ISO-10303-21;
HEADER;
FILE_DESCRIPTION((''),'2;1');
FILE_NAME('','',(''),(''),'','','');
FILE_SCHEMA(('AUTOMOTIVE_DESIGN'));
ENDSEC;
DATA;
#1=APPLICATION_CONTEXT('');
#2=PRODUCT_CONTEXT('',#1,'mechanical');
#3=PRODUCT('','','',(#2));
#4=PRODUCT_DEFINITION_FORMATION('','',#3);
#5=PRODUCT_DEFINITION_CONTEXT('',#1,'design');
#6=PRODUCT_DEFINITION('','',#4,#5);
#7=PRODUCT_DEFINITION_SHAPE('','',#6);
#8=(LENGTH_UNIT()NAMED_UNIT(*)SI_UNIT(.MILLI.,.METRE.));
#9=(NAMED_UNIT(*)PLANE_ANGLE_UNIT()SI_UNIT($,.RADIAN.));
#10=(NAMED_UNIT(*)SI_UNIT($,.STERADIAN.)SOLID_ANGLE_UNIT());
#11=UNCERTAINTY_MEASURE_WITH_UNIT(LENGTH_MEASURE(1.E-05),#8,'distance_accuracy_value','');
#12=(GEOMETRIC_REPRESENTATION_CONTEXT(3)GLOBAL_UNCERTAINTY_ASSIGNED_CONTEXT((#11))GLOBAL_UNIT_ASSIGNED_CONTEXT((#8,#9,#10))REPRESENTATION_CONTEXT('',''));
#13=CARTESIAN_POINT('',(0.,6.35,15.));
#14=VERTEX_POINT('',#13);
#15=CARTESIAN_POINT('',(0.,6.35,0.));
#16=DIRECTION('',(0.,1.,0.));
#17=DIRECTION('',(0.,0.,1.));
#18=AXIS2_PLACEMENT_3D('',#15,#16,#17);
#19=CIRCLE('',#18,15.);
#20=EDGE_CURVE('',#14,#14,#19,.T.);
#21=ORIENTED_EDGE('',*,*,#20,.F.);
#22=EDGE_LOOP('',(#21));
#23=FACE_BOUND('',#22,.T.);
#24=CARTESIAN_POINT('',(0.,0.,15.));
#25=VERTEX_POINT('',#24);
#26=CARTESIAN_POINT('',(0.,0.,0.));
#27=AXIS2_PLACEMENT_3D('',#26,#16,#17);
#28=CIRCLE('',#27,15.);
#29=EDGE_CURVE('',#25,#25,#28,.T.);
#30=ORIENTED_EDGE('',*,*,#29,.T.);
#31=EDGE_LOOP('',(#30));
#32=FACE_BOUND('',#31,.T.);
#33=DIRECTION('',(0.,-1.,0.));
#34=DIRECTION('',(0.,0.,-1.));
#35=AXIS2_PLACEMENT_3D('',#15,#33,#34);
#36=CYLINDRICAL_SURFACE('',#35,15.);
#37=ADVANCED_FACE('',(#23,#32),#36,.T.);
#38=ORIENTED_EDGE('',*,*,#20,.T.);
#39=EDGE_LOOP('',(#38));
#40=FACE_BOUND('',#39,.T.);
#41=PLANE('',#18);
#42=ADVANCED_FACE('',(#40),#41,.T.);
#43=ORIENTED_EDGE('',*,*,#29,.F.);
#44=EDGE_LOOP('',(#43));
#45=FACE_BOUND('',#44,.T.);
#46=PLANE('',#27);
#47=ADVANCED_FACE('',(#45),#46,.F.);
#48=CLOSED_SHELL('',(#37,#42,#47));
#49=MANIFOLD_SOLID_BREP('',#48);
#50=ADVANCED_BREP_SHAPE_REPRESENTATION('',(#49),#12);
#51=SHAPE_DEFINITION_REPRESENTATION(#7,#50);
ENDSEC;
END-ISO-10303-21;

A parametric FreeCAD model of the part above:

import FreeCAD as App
import Part
import Sketcher

V = App.Vector

doc = App.newDocument("Part")
params = doc.addObject("Spreadsheet::Sheet", "Params")
for row, (alias, value) in enumerate([
    ("sketch1_diameter", "30 mm"),
    ("pad1_length", "6.35 mm"),
], start=1):
    params.set(f"A{row}", alias)
    params.set(f"B{row}", "=" + value)
    params.setAlias(f"B{row}", alias)

body = doc.addObject("PartDesign::Body", "Body")

# Sketch on XZ plane
sketch1 = body.newObject("Sketcher::SketchObject", "Sketch")
sketch1.AttachmentSupport = (doc.getObject("XZ_Plane"), [""])
sketch1.MapMode = "FlatFace"
sketch1.addGeometry(Part.Circle(V(0, 0, 0), V(0, 0, 1), 15), False)
sketch1.addConstraint(Sketcher.Constraint("Coincident", 0, 3, -1, 1))
sketch1.addConstraint(Sketcher.Constraint("Diameter", 0, 30.0))
sketch1.setExpression("Constraints[1]", "Params.sketch1_diameter")
pad1 = body.newObject("PartDesign::Pad", "Pad")
pad1.Profile = sketch1
pad1.setExpression("Length", "Params.pad1_length")
pad1.Reversed = True

doc.recompute()
